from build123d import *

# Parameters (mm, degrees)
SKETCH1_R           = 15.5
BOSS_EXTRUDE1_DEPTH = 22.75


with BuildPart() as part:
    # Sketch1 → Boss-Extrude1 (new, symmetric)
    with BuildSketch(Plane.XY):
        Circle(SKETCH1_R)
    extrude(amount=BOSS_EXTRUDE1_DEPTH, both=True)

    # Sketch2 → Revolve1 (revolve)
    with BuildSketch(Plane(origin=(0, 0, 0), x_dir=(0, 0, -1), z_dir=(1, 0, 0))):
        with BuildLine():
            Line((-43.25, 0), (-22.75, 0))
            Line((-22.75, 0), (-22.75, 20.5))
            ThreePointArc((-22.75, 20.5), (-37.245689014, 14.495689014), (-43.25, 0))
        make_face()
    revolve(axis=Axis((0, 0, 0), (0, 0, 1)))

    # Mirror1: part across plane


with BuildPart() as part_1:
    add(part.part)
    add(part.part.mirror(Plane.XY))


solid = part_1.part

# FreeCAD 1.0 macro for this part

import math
import FreeCAD as App
import Part
import Sketcher

V = App.Vector

doc = App.newDocument("Part")
params = doc.addObject("Spreadsheet::Sheet", "Params")
for row, (alias, value) in enumerate([
    ("sketch1_diameter", "31 mm"),
    ("pad1_length", "45.5 mm"),
    ("sketch2_radius", "20.5 mm"),
    ("revolution_angle", "360 deg"),
], start=1):
    params.set(f"A{row}", alias)
    params.set(f"B{row}", "=" + value)
    params.setAlias(f"B{row}", alias)

body = doc.addObject("PartDesign::Body", "Body")

sketch1 = body.newObject("Sketcher::SketchObject", "Sketch")
sketch1.AttachmentSupport = (doc.getObject("XY_Plane"), [""])
sketch1.MapMode = "FlatFace"
sketch1.addGeometry(Part.Circle(V(0, 0, 0), V(0, 0, 1), 15.5), False)
sketch1.addConstraint([
    Sketcher.Constraint("Coincident", 0, 3, -1, 1),
    Sketcher.Constraint("Diameter", 0, 31.0),
])
sketch1.setExpression("Constraints[1]", "Params.sketch1_diameter")
pad1 = body.newObject("PartDesign::Pad", "Pad")
pad1.Profile = sketch1
pad1.setExpression("Length", "Params.pad1_length")
pad1.Midplane = True

sketch2 = body.newObject("Sketcher::SketchObject", "Sketch001")
sketch2.AttachmentSupport = (doc.getObject("YZ_Plane"), [""])
sketch2.MapMode = "FlatFace"
sketch2.addGeometry([
    Part.LineSegment(V(0, 43.25, 0), V(0, 22.75, 0)),
    Part.LineSegment(V(0, 22.75, 0), V(20.5, 22.75, 0)),
    Part.ArcOfCircle(Part.Circle(V(0, 22.75, 0), V(0, 0, 1), 20.5), math.radians(0), math.radians(90)),
], False)
sketch2.addConstraint([
    Sketcher.Constraint("Coincident", 0, 2, 1, 1),
    Sketcher.Constraint("Coincident", 1, 2, 2, 1),
    Sketcher.Constraint("Coincident", 2, 2, 0, 1),
    Sketcher.Constraint("Vertical", 0),
    Sketcher.Constraint("Horizontal", 1),
    Sketcher.Constraint("Coincident", 0, 2, 2, 3),
    Sketcher.Constraint("PointOnObject", 2, 3, -2),
    Sketcher.Constraint("Radius", 2, 20.5),
    Sketcher.Constraint("DistanceY", -1, 1, 2, 3, 22.75),
])
sketch2.setExpression("Constraints[7]", "Params.sketch2_radius")
revolution = body.newObject("PartDesign::Revolution", "Revolution")
revolution.Profile = sketch2
revolution.ReferenceAxis = (sketch2, ["V_Axis"])
revolution.setExpression("Angle", "Params.revolution_angle")
body2 = doc.addObject("PartDesign::Body", "Body001")
doc.recompute()

body2.BaseFeature = body
doc.recompute()

mirroring = doc.addObject("Part::Mirroring", "Mirroring")
mirroring.Source = body
mirroring.Base = V(0, 0, 0)
mirroring.Normal = V(0, 0, 1)
body3 = doc.addObject("PartDesign::Body", "Body002")
body3.BaseFeature = mirroring
boolean = body2.newObject("PartDesign::Boolean", "Boolean")
boolean.Type = "Fuse"
boolean.addObjects([body3])
doc.recompute()
mirroring.Visibility = False

doc.recompute()
